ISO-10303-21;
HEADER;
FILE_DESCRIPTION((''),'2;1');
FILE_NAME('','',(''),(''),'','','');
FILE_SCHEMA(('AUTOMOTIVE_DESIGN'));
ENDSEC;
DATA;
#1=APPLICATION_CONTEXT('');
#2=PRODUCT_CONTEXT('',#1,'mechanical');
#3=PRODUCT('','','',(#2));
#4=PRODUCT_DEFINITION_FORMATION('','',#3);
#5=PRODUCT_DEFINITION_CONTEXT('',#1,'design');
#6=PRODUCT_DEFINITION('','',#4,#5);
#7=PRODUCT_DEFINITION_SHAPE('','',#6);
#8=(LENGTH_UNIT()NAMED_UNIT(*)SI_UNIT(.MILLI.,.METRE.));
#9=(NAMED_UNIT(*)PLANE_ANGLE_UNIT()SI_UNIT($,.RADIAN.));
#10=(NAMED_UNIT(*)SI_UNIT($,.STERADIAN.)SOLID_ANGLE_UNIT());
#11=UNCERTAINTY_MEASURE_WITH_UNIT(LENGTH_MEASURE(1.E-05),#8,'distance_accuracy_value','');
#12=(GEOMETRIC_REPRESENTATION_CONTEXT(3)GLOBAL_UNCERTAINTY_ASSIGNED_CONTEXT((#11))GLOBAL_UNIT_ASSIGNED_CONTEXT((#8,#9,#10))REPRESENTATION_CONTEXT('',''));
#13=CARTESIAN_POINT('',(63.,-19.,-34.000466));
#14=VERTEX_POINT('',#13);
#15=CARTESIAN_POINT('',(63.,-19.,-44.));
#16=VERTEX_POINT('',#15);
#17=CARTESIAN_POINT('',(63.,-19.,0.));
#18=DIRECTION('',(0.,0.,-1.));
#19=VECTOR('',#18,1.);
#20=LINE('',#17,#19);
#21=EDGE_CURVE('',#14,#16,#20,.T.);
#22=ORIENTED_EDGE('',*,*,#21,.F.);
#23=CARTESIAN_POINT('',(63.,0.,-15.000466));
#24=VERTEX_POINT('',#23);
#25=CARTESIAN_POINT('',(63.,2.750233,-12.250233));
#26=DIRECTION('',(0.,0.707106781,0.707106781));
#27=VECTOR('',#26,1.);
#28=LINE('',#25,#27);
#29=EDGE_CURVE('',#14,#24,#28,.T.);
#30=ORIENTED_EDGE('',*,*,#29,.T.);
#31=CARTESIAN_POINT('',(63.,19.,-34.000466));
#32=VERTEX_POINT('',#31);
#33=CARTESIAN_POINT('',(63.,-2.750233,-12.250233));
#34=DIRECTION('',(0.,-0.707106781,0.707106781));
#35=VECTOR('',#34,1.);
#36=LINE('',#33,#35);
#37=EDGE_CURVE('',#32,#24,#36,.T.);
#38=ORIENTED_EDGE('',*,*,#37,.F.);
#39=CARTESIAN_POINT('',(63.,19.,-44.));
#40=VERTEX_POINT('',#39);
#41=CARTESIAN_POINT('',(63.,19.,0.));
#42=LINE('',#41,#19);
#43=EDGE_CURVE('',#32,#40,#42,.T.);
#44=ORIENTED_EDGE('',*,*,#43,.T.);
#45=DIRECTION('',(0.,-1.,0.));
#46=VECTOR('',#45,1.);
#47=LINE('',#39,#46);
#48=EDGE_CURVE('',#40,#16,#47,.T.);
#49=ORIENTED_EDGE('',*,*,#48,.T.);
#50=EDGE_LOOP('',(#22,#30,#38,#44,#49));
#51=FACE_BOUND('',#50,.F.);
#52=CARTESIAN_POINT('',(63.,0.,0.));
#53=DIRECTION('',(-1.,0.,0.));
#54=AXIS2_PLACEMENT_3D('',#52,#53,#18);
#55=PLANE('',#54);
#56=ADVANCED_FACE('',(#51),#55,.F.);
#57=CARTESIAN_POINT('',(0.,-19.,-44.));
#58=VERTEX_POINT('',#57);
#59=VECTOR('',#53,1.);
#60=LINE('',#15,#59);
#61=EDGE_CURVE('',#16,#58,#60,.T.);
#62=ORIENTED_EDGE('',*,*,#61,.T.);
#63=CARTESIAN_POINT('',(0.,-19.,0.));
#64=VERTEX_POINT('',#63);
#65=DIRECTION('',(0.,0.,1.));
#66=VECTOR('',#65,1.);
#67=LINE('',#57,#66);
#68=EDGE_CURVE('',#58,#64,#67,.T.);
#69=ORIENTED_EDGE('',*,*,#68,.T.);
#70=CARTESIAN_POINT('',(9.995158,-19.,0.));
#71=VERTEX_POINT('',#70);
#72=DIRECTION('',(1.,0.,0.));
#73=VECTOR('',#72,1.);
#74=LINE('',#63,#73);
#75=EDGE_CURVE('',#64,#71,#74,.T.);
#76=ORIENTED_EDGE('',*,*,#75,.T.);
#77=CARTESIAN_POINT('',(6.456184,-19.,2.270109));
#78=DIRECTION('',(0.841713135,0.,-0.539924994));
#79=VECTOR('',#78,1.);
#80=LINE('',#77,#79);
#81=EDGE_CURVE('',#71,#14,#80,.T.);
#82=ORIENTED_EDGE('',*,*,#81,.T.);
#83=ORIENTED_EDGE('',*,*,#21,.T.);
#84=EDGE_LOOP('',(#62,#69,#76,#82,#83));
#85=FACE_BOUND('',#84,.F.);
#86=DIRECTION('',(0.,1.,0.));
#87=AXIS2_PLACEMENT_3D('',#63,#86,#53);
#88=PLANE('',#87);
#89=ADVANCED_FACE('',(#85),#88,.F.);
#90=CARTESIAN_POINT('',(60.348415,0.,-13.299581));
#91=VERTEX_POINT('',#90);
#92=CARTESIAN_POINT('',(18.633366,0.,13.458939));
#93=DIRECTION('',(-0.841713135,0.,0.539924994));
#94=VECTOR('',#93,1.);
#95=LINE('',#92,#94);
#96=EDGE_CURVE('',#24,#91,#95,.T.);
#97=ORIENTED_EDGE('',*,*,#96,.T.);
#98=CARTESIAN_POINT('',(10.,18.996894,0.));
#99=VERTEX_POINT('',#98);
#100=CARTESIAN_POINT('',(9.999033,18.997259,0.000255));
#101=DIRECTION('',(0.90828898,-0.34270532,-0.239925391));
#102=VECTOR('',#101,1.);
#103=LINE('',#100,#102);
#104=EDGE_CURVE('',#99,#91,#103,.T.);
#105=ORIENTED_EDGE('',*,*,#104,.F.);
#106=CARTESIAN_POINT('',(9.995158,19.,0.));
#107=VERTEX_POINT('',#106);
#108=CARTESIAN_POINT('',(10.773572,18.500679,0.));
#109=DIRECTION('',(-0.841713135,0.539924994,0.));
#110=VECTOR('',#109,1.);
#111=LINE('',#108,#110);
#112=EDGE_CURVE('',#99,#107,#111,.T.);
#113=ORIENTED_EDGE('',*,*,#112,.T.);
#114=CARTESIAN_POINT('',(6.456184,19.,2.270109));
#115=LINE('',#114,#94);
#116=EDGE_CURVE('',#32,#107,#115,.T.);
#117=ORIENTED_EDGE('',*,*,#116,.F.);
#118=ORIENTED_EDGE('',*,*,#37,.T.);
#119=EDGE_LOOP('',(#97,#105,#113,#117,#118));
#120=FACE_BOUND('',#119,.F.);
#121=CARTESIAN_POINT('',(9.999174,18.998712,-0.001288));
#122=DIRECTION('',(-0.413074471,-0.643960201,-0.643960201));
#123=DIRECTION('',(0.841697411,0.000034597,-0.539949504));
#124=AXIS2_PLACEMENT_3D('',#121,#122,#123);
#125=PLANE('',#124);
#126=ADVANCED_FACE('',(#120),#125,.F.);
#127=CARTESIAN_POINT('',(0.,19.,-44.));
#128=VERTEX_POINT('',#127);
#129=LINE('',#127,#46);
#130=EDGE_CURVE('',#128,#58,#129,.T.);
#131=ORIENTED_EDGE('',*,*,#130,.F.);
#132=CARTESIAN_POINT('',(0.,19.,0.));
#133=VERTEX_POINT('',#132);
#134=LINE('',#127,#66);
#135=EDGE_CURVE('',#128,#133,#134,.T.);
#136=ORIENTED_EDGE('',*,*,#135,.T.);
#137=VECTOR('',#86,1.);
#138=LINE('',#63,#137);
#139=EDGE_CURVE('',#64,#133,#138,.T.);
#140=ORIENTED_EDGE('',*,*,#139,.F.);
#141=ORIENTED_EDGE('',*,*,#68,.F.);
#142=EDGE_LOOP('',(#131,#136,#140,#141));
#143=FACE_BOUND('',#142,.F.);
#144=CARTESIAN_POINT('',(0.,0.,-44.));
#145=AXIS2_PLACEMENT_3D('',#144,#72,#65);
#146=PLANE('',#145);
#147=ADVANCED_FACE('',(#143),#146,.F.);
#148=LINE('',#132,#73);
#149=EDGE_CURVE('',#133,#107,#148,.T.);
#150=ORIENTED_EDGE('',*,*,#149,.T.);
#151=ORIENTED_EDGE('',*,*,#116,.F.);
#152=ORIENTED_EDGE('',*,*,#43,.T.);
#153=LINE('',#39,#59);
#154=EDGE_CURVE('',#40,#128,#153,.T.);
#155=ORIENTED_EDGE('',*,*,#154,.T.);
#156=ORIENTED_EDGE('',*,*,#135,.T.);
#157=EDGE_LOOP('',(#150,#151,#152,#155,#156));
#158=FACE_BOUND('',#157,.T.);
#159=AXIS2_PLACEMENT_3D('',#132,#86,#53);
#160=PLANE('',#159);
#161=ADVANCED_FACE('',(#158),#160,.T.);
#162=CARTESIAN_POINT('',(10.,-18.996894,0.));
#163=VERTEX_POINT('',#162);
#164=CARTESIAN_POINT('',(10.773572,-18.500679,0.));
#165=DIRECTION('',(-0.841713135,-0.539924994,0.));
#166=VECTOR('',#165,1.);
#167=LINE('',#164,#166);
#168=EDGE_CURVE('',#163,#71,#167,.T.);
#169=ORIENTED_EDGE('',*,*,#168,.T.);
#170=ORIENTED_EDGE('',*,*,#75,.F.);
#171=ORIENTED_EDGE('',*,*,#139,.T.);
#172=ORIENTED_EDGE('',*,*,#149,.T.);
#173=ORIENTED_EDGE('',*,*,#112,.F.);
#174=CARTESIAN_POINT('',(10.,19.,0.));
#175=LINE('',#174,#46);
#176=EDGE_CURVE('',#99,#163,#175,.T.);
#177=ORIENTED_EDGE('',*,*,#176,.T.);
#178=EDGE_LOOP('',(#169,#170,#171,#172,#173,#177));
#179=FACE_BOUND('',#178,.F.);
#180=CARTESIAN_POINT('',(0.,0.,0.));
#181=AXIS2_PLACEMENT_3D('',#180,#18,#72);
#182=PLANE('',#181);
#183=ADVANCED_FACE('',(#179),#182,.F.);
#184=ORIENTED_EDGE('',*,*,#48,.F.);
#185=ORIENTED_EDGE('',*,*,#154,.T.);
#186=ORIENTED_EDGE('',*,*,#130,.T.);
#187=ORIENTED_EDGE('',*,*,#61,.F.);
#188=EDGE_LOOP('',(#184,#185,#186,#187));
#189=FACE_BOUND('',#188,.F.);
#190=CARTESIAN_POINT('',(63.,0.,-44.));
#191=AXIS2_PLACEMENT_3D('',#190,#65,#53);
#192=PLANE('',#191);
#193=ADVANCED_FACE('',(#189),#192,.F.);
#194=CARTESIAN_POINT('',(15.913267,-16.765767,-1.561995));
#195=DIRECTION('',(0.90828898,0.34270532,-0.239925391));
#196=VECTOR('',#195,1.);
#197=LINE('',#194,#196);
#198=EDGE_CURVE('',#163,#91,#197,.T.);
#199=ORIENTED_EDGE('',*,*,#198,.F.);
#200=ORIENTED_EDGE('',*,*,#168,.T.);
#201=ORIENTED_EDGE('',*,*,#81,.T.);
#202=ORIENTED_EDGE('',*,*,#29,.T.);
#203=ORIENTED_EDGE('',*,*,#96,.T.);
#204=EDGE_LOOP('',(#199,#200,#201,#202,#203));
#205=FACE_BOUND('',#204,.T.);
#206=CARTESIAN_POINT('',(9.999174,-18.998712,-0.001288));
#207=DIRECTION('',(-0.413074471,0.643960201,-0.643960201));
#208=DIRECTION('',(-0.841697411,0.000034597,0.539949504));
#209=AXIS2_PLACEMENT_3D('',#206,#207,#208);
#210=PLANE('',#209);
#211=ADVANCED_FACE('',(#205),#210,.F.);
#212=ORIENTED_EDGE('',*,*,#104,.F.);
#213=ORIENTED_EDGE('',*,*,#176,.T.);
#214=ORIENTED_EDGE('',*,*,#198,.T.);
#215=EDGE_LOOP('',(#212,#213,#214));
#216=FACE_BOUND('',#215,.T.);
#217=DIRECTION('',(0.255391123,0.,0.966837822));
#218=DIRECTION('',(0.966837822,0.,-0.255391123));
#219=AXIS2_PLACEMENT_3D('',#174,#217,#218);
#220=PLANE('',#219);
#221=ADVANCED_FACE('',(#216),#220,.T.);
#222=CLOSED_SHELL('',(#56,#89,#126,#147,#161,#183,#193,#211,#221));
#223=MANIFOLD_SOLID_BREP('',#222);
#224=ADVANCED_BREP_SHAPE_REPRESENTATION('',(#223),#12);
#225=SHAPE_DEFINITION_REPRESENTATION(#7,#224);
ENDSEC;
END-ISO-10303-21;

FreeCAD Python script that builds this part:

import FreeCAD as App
import Part
import Sketcher

doc = App.newDocument("Part")
body = doc.addObject("PartDesign::Body", "Body")

sketch1 = doc.addObject("Sketcher::SketchObject", "Sketch")
body.addObject(sketch1)
sketch1.AttachmentSupport = (doc.XZ_Plane, [""])
sketch1.MapMode = "FlatFace"
sketch1.addGeometry(Part.LineSegment(App.Vector(0, -44, 0), App.Vector(0, 0, 0)), False)
sketch1.addGeometry(Part.LineSegment(App.Vector(0, 0, 0), App.Vector(63, 0, 0)), False)
sketch1.addGeometry(Part.LineSegment(App.Vector(63, 0, 0), App.Vector(63, -44, 0)), False)
sketch1.addGeometry(Part.LineSegment(App.Vector(63, -44, 0), App.Vector(0, -44, 0)), False)
sketch1.addConstraint(Sketcher.Constraint("Coincident", 0, 2, 1, 1))
sketch1.addConstraint(Sketcher.Constraint("Coincident", 1, 2, 2, 1))
sketch1.addConstraint(Sketcher.Constraint("Coincident", 2, 2, 3, 1))
sketch1.addConstraint(Sketcher.Constraint("Coincident", 3, 2, 0, 1))
sketch1.addConstraint(Sketcher.Constraint("Vertical", 0))
sketch1.addConstraint(Sketcher.Constraint("Horizontal", 1))
sketch1.addConstraint(Sketcher.Constraint("Vertical", 2))
sketch1.addConstraint(Sketcher.Constraint("Horizontal", 3))
sketch1.addConstraint(Sketcher.Constraint("Coincident", 0, 2, -1, 1))
sketch1.addConstraint(Sketcher.Constraint("DistanceX", 1, 1, 1, 2, 63.0))
sketch1.addConstraint(Sketcher.Constraint("DistanceY", 0, 1, 0, 2, 44.0))
pad1 = doc.addObject("PartDesign::Pad", "Pad")
body.addObject(pad1)
pad1.Profile = sketch1
pad1.Length = 38
pad1.Midplane = True

sketch2 = doc.addObject("Sketcher::SketchObject", "Sketch001")
body.addObject(sketch2)
sketch2.AttachmentSupport = (doc.XZ_Plane, [""])
sketch2.MapMode = "FlatFace"
sketch2.AttachmentOffset = App.Placement(App.Vector(0, 0, -19), App.Rotation())
sketch2.addGeometry(Part.LineSegment(App.Vector(63, -14, 0), App.Vector(10, 0, 0)), False)
sketch2.addGeometry(Part.LineSegment(App.Vector(10, 0, 0), App.Vector(63, 0, 0)), False)
sketch2.addGeometry(Part.LineSegment(App.Vector(63, 0, 0), App.Vector(63, -14, 0)), False)
sketch2.addConstraint(Sketcher.Constraint("Coincident", 0, 2, 1, 1))
sketch2.addConstraint(Sketcher.Constraint("Coincident", 1, 2, 2, 1))
sketch2.addConstraint(Sketcher.Constraint("Coincident", 2, 2, 0, 1))
sketch2.addConstraint(Sketcher.Constraint("Horizontal", 1))
sketch2.addConstraint(Sketcher.Constraint("Vertical", 2))
sketch2.addConstraint(Sketcher.Constraint("PointOnObject", 0, 2, -1))
sketch2.addConstraint(Sketcher.Constraint("DistanceX", -1, 1, 0, 2, 10.0))
sketch2.addConstraint(Sketcher.Constraint("DistanceX", 1, 1, 1, 2, 53.0))
sketch2.addConstraint(Sketcher.Constraint("DistanceY", 2, 2, 2, 1, 14.0))
pocket1 = doc.addObject("PartDesign::Pocket", "Pocket")
body.addObject(pocket1)
pocket1.Profile = sketch2
pocket1.Length = 40
pocket1.Reversed = True

sketch3 = doc.addObject("Sketcher::SketchObject", "Sketch002")
body.addObject(sketch3)
sketch3.Placement = App.Placement(App.Vector(10, 19, 0), App.Rotation(App.Vector(0.841697411, 0.000034597, -0.539949504), App.Vector(0.34772827, -0.76505899, 0.542005343), App.Vector(-0.413074471, -0.643960201, -0.643960201), "ZXY"))
sketch3.addGeometry(Part.LineSegment(App.Vector(-15, 29, 0), App.Vector(-15, -12, 0)), False)
sketch3.addGeometry(Part.LineSegment(App.Vector(-15, -12, 0), App.Vector(94, -12, 0)), False)
sketch3.addGeometry(Part.LineSegment(App.Vector(94, -12, 0), App.Vector(94, 29, 0)), False)
sketch3.addGeometry(Part.LineSegment(App.Vector(94, 29, 0), App.Vector(-15, 29, 0)), False)
sketch3.addConstraint(Sketcher.Constraint("Coincident", 0, 2, 1, 1))
sketch3.addConstraint(Sketcher.Constraint("Coincident", 1, 2, 2, 1))
sketch3.addConstraint(Sketcher.Constraint("Coincident", 2, 2, 3, 1))
sketch3.addConstraint(Sketcher.Constraint("Coincident", 3, 2, 0, 1))
sketch3.addConstraint(Sketcher.Constraint("Vertical", 0))
sketch3.addConstraint(Sketcher.Constraint("Horizontal", 1))
sketch3.addConstraint(Sketcher.Constraint("Vertical", 2))
sketch3.addConstraint(Sketcher.Constraint("Horizontal", 3))
sketch3.addConstraint(Sketcher.Constraint("DistanceX", 1, 1, 1, 2, 108.8713))
sketch3.addConstraint(Sketcher.Constraint("DistanceY", 0, 2, 0, 1, 41.1384))
sketch3.addConstraint(Sketcher.Constraint("DistanceX", -1, 1, 1, 2, 93.717))
sketch3.addConstraint(Sketcher.Constraint("DistanceY", 0, 2, -1, 1, 12.3218))
pocket2 = doc.addObject("PartDesign::Pocket", "Pocket001")
body.addObject(pocket2)
pocket2.Profile = sketch3
pocket2.Length = 40
doc.recompute()

mirrored = doc.addObject("PartDesign::Mirrored", "Mirrored")
body.addObject(mirrored)
mirrored.Originals = [pocket2]
mirrored.MirrorPlane = (doc.XZ_Plane, [""])
body.Tip = mirrored

doc.recompute()
